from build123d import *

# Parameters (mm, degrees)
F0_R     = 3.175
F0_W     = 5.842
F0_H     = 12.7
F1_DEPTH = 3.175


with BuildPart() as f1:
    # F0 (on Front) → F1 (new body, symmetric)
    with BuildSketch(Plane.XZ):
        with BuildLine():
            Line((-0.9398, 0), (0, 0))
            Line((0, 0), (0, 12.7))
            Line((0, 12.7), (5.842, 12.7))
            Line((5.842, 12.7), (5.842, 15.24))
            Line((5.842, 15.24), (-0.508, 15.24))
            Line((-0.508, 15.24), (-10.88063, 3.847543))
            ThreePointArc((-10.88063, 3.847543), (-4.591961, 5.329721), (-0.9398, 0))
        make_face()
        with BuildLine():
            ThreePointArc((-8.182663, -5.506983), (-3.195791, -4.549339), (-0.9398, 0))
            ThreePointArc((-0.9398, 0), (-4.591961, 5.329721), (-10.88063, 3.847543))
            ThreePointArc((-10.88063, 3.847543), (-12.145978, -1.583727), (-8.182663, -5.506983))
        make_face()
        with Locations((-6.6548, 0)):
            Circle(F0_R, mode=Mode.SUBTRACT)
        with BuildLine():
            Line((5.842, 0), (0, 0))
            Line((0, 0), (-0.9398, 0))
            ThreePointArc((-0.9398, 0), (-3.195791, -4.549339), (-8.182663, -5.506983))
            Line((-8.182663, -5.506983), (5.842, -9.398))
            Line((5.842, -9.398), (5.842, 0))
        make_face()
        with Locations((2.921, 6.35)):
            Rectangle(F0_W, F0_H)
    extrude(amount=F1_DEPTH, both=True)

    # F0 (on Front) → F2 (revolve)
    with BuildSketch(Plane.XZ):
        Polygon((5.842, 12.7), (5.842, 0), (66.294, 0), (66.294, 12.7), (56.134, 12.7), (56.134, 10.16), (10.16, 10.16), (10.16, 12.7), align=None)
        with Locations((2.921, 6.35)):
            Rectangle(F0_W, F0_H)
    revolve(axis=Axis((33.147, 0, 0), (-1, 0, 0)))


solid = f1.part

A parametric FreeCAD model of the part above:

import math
import FreeCAD as App
import Part
import Sketcher
Q = App.Units.Quantity


def add_polygon(sketch, points):
    """Adds a closed chain of lines whose ends are joined by coincident constraints."""
    first, n = sketch.GeometryCount, len(points)
    for a, b in zip(points, points[1:] + points[:1]):
        sketch.addGeometry(Part.LineSegment(App.Vector(*a, 0), App.Vector(*b, 0)), False)
    for i in range(n):
        sketch.addConstraint(Sketcher.Constraint("Coincident", first + i, 2, first + (i + 1) % n, 1))

doc = App.newDocument("Part")
params = doc.addObject("Spreadsheet::Sheet", "Params")
for row, (alias, value) in enumerate([
    ("sketch1_diameter", "0.25 in"),
    ("sketch1_radius", "0.225 in"),
    ("sketch1_width", "0.25 in"),
    ("sketch1_height", "0.97 in"),
    ("pad1_length", "0.25 in"),
    ("sketch2_width", "0.4 in"),
    ("sketch2_height", "0.5 in"),
    ("sketch2_height2", "0.1 in"),
    ("sketch2_width2", "1.81 in"),
    ("revolution_angle", "360 deg"),
], start=1):
    params.set(f"A{row}", alias)
    params.set(f"B{row}", "=" + value)
    params.setAlias(f"B{row}", alias)

body = doc.addObject("PartDesign::Body", "Body")

# Sketch on XZ plane
sketch1 = body.newObject("Sketcher::SketchObject", "Sketch")
sketch1.AttachmentSupport = (doc.getObject("XZ_Plane"), [""])
sketch1.MapMode = "FlatFace"
sketch1.addGeometry(Part.LineSegment(App.Vector(5.842, 15.24, 0), App.Vector(-0.508, 15.24, 0)), False)
sketch1.addGeometry(Part.LineSegment(App.Vector(-0.508, 15.24, 0), App.Vector(-10.88063, 3.847543, 0)), False)
sketch1.addGeometry(Part.ArcOfCircle(Part.Circle(App.Vector(-6.6548, 0, 0), App.Vector(0, 0, 1), 5.715), math.radians(137.682696), math.radians(254.493803)), False)
sketch1.addGeometry(Part.LineSegment(App.Vector(-8.182663, -5.506983, 0), App.Vector(5.842, -9.398, 0)), False)
sketch1.addGeometry(Part.LineSegment(App.Vector(5.842, -9.398, 0), App.Vector(5.842, 15.24, 0)), False)
sketch1.addGeometry(Part.Circle(App.Vector(-6.6548, 0, 0), App.Vector(0, 0, 1), 3.175), False)
sketch1.addConstraint(Sketcher.Constraint("Coincident", 0, 2, 1, 1))
sketch1.addConstraint(Sketcher.Constraint("Tangent", 1, 2, 2, 1))
sketch1.addConstraint(Sketcher.Constraint("Tangent", 2, 2, 3, 1))
sketch1.addConstraint(Sketcher.Constraint("Coincident", 3, 2, 4, 1))
sketch1.addConstraint(Sketcher.Constraint("Coincident", 4, 2, 0, 1))
sketch1.addConstraint(Sketcher.Constraint("Horizontal", 0))
sketch1.addConstraint(Sketcher.Constraint("Vertical", 4))
sketch1.addConstraint(Sketcher.Constraint("Coincident", 5, 3, 2, 3))
sketch1.addConstraint(Sketcher.Constraint("PointOnObject", 2, 3, -1))
sketch1.addConstraint(Sketcher.Constraint("Diameter", 5, Q("0.25 in")))
sketch1.addConstraint(Sketcher.Constraint("Radius", 2, Q("0.225 in")))
sketch1.addConstraint(Sketcher.Constraint("DistanceX", 0, 2, 0, 1, Q("0.25 in")))
sketch1.addConstraint(Sketcher.Constraint("DistanceY", 4, 1, 4, 2, Q("0.97 in")))
sketch1.addConstraint(Sketcher.Constraint("DistanceY", -1, 1, 0, 2, Q("0.6 in")))
sketch1.addConstraint(Sketcher.Constraint("DistanceX", 0, 2, -1, 1, Q("0.02 in")))
sketch1.addConstraint(Sketcher.Constraint("DistanceX", 2, 3, -1, 1, Q("0.262 in")))
sketch1.setExpression("Constraints[9]", "Params.sketch1_diameter")
sketch1.setExpression("Constraints[10]", "Params.sketch1_radius")
sketch1.setExpression("Constraints[11]", "Params.sketch1_width")
sketch1.setExpression("Constraints[12]", "Params.sketch1_height")
pad1 = body.newObject("PartDesign::Pad", "Pad")
pad1.Profile = sketch1
pad1.setExpression("Length", "Params.pad1_length")
pad1.Midplane = True

# Sketch on XZ plane
sketch2 = body.newObject("Sketcher::SketchObject", "Sketch001")
sketch2.AttachmentSupport = (doc.getObject("XZ_Plane"), [""])
sketch2.MapMode = "FlatFace"
add_polygon(sketch2, [(66.294, 0), (66.294, 12.7), (56.134, 12.7), (56.134, 10.16), (10.16, 10.16), (10.16, 12.7), (0, 12.7), (0, 0)])  # lines 0-7
sketch2.addConstraint(Sketcher.Constraint("Vertical", 0))
sketch2.addConstraint(Sketcher.Constraint("Horizontal", 1))
sketch2.addConstraint(Sketcher.Constraint("Vertical", 2))
sketch2.addConstraint(Sketcher.Constraint("Horizontal", 3))
sketch2.addConstraint(Sketcher.Constraint("Vertical", 4))
sketch2.addConstraint(Sketcher.Constraint("Horizontal", 5))
sketch2.addConstraint(Sketcher.Constraint("Vertical", 6))
sketch2.addConstraint(Sketcher.Constraint("Horizontal", 7))
sketch2.addConstraint(Sketcher.Constraint("Coincident", 6, 2, -1, 1))
sketch2.addConstraint(Sketcher.Constraint("Horizontal", 1, 2, 4, 2))
sketch2.addConstraint(Sketcher.Constraint("Equal", 1, 5))
sketch2.addConstraint(Sketcher.Constraint("DistanceX", 1, 2, 1, 1, Q("0.4 in")))
sketch2.addConstraint(Sketcher.Constraint("DistanceY", 0, 1, 0, 2, Q("0.5 in")))
sketch2.addConstraint(Sketcher.Constraint("DistanceY", 2, 2, 2, 1, Q("0.1 in")))
sketch2.addConstraint(Sketcher.Constraint("DistanceX", 3, 2, 3, 1, Q("1.81 in")))
sketch2.setExpression("Constraints[19]", "Params.sketch2_width")
sketch2.setExpression("Constraints[20]", "Params.sketch2_height")
sketch2.setExpression("Constraints[21]", "Params.sketch2_height2")
sketch2.setExpression("Constraints[22]", "Params.sketch2_width2")
revolution = body.newObject("PartDesign::Revolution", "Revolution")
revolution.Profile = sketch2
revolution.ReferenceAxis = (sketch2, ["H_Axis"])
revolution.setExpression("Angle", "Params.revolution_angle")

doc.recompute()
